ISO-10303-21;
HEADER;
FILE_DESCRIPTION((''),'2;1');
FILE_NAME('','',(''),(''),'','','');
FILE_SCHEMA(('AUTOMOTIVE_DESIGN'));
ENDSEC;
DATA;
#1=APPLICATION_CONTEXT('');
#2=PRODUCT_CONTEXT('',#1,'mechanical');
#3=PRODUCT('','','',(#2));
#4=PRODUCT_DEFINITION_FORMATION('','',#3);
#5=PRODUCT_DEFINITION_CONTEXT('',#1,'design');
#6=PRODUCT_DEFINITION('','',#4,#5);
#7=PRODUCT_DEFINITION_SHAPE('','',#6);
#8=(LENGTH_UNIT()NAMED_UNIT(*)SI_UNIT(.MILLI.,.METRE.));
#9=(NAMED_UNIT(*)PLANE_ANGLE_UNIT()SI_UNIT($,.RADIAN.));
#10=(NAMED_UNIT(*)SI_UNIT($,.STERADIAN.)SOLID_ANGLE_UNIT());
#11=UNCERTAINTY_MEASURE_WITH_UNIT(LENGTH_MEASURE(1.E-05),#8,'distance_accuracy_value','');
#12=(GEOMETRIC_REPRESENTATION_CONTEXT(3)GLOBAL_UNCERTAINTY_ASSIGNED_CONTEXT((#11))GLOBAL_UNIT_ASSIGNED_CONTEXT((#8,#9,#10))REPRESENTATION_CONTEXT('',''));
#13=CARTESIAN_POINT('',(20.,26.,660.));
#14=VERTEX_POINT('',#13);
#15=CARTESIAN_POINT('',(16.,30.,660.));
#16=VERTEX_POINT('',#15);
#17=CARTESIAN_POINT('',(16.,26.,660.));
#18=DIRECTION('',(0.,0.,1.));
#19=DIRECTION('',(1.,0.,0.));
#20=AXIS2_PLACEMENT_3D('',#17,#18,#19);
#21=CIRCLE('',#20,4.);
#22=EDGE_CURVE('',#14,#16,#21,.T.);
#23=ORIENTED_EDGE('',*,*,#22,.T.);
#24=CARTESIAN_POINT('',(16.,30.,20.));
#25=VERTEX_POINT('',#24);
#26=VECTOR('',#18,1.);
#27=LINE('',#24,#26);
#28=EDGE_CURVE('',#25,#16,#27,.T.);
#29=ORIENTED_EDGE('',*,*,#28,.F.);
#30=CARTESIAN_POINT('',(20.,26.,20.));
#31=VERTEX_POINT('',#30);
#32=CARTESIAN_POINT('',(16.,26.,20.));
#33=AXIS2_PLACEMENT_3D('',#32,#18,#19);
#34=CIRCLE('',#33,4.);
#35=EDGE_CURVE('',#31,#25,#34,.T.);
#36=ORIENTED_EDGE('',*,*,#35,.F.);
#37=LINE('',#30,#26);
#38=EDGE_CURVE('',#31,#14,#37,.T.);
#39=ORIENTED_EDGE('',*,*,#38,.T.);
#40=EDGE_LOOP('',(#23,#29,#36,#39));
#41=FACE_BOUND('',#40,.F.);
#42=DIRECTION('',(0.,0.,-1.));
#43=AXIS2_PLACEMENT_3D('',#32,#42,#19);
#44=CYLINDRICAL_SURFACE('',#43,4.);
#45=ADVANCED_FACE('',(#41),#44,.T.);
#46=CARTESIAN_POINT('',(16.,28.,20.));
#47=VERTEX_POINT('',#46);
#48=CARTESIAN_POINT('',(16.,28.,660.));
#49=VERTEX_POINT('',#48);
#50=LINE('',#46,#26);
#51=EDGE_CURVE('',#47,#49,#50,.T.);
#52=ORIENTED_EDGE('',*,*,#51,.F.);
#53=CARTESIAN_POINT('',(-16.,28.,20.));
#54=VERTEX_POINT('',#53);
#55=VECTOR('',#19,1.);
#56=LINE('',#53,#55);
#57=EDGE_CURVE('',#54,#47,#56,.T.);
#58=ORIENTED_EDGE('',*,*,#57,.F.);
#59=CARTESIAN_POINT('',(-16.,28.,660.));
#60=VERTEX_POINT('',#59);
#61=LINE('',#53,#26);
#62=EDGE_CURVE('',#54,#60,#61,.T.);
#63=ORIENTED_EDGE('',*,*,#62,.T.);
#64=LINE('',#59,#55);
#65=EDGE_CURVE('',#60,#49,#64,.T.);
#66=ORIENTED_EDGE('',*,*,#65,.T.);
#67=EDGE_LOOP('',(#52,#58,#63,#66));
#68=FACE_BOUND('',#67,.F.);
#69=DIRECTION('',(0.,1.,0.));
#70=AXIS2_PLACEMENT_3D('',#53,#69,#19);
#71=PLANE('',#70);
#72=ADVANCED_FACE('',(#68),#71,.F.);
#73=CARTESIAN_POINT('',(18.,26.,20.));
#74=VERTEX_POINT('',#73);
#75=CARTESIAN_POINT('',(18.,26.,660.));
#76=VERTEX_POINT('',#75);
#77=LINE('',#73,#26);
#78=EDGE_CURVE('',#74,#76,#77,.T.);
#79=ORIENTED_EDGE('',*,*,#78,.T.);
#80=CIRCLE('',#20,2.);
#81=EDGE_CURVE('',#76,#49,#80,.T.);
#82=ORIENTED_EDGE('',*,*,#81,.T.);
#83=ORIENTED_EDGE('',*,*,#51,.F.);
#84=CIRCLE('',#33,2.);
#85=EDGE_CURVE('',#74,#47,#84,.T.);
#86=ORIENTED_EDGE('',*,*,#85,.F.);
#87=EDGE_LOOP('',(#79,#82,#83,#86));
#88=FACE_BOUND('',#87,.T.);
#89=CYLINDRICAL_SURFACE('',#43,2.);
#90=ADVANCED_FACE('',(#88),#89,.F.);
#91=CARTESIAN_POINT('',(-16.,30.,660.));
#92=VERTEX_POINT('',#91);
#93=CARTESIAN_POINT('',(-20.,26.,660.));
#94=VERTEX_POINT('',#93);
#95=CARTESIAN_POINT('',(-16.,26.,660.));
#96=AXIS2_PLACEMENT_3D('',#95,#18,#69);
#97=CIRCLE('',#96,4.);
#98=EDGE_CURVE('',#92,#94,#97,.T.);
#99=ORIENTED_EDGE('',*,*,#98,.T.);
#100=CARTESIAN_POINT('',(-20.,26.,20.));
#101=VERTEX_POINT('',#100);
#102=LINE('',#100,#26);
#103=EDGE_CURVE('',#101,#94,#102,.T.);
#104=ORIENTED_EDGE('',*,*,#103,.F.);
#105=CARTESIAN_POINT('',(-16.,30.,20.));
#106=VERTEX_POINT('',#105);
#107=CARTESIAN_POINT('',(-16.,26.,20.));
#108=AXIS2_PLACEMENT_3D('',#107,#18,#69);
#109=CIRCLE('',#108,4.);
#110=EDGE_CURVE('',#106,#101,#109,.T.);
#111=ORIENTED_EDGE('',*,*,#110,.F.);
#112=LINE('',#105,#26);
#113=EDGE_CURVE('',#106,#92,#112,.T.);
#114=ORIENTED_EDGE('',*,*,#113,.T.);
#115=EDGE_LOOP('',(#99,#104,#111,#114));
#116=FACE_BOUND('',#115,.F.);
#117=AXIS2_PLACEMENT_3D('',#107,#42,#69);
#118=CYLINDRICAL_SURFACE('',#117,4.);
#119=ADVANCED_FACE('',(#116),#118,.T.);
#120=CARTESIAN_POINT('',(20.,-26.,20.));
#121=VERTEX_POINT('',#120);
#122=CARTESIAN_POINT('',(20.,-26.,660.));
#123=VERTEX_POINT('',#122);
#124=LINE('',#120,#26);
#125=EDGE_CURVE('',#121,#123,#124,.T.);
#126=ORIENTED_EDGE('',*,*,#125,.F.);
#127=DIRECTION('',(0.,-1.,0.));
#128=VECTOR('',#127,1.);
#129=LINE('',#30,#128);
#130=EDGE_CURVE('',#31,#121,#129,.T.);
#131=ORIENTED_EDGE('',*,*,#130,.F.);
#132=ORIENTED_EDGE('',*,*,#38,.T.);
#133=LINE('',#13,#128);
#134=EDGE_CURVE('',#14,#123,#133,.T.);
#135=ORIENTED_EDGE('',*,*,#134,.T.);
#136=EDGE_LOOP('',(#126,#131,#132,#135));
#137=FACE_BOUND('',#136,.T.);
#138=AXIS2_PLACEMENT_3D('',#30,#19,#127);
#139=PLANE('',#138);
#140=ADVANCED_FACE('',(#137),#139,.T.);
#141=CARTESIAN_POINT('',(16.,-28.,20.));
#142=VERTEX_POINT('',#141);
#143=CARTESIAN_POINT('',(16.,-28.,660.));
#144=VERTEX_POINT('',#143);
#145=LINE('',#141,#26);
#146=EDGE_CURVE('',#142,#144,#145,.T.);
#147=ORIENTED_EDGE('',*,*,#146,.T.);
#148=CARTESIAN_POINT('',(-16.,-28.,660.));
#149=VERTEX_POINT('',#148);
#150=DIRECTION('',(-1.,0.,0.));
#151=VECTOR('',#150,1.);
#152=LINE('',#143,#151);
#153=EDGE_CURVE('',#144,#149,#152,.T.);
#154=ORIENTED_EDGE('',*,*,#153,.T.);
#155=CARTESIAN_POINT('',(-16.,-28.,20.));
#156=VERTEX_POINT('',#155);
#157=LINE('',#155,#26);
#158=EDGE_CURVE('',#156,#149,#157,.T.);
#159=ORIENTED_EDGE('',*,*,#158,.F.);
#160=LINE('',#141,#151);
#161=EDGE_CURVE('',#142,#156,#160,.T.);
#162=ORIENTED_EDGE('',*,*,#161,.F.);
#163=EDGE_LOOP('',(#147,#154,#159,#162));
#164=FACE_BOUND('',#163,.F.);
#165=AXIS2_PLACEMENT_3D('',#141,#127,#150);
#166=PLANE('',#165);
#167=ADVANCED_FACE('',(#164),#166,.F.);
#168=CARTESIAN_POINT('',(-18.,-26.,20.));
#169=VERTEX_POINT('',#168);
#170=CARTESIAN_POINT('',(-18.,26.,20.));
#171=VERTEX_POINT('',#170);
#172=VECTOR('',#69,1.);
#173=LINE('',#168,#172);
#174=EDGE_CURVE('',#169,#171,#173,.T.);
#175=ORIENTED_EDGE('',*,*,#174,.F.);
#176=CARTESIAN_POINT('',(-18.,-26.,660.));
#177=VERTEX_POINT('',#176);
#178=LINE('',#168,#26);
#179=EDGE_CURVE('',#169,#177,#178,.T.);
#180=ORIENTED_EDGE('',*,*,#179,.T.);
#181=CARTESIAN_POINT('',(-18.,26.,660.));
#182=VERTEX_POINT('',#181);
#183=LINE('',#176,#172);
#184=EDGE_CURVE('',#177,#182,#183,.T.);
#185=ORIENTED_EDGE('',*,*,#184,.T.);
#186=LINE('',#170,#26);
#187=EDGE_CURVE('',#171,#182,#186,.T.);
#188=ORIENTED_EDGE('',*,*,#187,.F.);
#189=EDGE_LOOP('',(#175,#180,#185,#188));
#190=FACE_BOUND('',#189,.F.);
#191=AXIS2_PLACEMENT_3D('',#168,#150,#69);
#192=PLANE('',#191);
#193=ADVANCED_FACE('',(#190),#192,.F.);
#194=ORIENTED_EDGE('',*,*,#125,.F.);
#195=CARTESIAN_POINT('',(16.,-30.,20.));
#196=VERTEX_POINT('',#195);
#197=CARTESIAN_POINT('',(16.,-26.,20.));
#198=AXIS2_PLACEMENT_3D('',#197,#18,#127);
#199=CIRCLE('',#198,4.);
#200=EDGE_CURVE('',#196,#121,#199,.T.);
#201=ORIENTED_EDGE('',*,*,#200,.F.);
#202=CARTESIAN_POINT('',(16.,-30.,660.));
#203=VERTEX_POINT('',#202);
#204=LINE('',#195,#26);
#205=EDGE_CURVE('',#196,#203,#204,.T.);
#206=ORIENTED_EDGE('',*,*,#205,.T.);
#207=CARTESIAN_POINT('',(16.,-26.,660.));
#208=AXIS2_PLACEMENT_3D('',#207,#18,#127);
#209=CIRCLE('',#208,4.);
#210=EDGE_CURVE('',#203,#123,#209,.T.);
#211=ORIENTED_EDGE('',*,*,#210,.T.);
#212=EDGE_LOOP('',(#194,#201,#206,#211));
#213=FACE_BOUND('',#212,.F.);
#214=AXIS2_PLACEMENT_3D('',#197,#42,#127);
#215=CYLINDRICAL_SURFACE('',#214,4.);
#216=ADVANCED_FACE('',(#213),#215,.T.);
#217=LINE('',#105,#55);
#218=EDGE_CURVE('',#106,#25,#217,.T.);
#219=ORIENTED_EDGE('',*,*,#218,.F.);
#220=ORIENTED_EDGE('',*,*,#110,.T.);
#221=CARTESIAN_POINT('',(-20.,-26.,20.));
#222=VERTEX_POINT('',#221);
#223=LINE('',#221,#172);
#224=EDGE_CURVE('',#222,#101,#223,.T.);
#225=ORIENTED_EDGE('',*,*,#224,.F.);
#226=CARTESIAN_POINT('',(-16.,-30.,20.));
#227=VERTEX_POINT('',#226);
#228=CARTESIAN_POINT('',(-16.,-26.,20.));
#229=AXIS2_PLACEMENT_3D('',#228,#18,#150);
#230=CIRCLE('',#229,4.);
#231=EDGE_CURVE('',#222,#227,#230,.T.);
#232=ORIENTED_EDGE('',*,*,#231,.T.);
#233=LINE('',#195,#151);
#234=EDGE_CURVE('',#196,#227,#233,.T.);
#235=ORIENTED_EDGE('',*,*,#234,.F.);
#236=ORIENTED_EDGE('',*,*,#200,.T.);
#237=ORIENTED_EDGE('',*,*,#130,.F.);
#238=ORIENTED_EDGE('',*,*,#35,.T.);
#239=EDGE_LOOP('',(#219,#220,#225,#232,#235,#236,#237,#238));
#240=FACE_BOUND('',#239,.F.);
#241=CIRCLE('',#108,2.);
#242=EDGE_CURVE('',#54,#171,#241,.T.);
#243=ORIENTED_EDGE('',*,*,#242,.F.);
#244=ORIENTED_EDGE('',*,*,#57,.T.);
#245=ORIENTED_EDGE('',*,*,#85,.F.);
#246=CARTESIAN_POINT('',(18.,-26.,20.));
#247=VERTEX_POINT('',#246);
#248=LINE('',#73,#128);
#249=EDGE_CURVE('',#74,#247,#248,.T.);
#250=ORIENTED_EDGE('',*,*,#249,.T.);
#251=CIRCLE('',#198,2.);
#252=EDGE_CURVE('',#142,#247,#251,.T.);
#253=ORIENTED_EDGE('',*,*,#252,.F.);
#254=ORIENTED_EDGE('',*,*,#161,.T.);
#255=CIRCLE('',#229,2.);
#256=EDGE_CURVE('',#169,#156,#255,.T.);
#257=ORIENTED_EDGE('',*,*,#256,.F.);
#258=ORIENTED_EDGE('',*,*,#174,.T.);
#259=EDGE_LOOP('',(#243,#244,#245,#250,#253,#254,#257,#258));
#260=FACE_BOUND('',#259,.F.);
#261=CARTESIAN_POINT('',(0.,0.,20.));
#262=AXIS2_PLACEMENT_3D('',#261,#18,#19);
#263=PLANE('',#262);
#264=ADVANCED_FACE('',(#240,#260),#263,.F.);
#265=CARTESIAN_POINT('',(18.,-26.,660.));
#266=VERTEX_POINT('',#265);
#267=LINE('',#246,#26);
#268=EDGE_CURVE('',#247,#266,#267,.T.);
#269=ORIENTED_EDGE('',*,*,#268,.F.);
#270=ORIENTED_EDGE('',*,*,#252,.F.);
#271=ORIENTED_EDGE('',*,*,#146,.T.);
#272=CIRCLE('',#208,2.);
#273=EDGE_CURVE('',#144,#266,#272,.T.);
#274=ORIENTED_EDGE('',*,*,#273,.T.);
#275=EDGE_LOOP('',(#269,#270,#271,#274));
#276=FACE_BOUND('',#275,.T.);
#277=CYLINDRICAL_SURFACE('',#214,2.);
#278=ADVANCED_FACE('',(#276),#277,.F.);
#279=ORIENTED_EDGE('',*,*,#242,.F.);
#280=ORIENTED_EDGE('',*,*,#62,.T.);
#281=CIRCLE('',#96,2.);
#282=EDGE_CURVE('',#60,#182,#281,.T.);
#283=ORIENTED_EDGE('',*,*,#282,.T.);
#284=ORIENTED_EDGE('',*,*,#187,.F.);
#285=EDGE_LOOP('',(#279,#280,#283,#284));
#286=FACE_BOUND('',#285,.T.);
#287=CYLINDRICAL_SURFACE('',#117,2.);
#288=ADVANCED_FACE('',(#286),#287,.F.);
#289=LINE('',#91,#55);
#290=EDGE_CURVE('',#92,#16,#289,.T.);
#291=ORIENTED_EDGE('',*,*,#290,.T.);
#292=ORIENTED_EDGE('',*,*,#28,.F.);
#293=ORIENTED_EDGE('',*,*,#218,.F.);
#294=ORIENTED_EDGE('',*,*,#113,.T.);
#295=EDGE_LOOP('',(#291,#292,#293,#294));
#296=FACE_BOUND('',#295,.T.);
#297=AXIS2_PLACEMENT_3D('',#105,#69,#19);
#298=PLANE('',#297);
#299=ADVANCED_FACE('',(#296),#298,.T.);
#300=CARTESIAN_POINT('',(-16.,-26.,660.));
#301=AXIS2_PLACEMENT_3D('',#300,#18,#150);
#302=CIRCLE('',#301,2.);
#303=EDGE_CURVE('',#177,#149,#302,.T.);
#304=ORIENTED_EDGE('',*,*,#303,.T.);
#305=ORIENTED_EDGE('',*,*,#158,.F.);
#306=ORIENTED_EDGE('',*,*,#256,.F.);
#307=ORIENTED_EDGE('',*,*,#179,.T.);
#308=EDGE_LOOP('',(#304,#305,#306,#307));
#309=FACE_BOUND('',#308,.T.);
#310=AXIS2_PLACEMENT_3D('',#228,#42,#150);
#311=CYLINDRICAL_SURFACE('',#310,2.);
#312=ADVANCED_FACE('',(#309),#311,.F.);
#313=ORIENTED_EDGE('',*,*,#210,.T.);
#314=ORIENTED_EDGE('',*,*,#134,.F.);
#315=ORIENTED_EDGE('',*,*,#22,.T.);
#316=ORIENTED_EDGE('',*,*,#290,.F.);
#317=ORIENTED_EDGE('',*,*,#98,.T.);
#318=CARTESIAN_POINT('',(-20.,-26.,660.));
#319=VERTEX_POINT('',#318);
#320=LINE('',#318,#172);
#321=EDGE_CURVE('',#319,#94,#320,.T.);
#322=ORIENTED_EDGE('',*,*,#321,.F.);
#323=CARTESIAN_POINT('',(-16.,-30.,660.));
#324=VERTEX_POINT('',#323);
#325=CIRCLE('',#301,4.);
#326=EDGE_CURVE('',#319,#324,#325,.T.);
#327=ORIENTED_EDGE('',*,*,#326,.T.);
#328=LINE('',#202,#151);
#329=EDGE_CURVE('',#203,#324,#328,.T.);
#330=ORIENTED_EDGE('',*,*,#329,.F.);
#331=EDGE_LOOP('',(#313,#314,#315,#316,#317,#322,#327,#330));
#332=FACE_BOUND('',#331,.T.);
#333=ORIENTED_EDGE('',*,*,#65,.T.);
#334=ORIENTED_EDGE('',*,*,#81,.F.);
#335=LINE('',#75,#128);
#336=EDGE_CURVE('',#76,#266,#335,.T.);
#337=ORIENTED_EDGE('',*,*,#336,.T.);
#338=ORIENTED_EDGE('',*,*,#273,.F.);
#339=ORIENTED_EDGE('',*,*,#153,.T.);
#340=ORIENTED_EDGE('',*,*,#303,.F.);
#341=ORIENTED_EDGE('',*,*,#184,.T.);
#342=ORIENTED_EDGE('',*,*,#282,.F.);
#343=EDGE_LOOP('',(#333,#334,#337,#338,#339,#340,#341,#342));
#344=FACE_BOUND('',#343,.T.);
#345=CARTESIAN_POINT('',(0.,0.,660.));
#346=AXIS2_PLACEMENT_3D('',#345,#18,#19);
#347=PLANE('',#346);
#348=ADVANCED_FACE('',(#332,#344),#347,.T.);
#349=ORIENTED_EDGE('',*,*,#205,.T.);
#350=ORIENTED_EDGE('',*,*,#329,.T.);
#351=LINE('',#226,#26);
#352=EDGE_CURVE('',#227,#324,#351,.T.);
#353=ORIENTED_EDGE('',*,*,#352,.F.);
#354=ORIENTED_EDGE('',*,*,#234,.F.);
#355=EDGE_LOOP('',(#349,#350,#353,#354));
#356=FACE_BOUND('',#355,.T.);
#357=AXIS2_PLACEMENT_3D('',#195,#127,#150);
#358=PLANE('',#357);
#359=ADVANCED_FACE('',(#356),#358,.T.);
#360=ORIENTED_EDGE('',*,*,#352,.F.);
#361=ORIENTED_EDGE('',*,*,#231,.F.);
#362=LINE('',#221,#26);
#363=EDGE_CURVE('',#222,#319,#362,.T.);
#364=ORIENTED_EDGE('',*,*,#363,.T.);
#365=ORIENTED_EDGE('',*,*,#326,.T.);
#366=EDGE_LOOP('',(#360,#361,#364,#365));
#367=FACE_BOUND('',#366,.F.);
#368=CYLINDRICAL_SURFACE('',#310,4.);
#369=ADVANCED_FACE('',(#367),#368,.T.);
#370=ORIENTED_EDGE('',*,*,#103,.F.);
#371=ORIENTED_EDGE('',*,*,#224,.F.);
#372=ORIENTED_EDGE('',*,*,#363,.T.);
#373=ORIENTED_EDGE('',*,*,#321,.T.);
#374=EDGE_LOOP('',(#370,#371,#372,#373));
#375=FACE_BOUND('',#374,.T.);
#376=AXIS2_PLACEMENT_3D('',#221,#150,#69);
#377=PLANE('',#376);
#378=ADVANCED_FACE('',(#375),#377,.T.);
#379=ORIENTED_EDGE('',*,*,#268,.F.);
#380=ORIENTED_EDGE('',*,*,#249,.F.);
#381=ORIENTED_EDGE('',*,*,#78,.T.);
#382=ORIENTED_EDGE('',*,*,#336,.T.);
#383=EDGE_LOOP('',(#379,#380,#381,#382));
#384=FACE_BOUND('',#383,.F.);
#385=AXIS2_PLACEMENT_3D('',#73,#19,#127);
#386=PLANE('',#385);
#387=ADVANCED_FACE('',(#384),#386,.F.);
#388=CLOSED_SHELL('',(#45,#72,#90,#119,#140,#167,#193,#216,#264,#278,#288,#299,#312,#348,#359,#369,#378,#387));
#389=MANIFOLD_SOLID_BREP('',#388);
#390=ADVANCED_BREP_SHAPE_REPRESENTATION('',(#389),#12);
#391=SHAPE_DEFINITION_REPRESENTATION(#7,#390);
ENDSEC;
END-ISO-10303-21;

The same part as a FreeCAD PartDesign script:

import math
import FreeCAD as App
import Part
import Sketcher

V = App.Vector

doc = App.newDocument("Part")
body = doc.addObject("PartDesign::Body", "Body")

# Sketch on XY plane
sketch1 = body.newObject("Sketcher::SketchObject", "Sketch")
sketch1.AttachmentSupport = (doc.getObject("XY_Plane"), [""])
sketch1.MapMode = "FlatFace"
sketch1.AttachmentOffset = App.Placement(V(0, 0, 20), App.Rotation())
sketch1.addGeometry([
    Part.LineSegment(V(-20, 26, 0), V(-20, -26, 0)),  # 0
    Part.ArcOfCircle(Part.Circle(V(-16, -26, 0), V(0, 0, 1), 4), math.radians(180), math.radians(270)),  # 1
    Part.LineSegment(V(-16, -30, 0), V(16, -30, 0)),  # 2
    Part.ArcOfCircle(Part.Circle(V(16, -26, 0), V(0, 0, 1), 4), math.radians(-90), math.radians(0)),  # 3
    Part.LineSegment(V(20, -26, 0), V(20, 26, 0)),  # 4
    Part.ArcOfCircle(Part.Circle(V(16, 26, 0), V(0, 0, 1), 4), math.radians(0), math.radians(90)),  # 5
    Part.LineSegment(V(16, 30, 0), V(-16, 30, 0)),  # 6
    Part.ArcOfCircle(Part.Circle(V(-16, 26, 0), V(0, 0, 1), 4), math.radians(90), math.radians(180)),  # 7
    Part.ArcOfCircle(Part.Circle(V(-16, 26, 0), V(0, 0, 1), 2), math.radians(90), math.radians(180)),  # 8
    Part.LineSegment(V(-16, 28, 0), V(16, 28, 0)),  # 9
    Part.ArcOfCircle(Part.Circle(V(16, 26, 0), V(0, 0, 1), 2), math.radians(0), math.radians(90)),  # 10
    Part.LineSegment(V(18, 26, 0), V(18, -26, 0)),  # 11
    Part.ArcOfCircle(Part.Circle(V(16, -26, 0), V(0, 0, 1), 2), math.radians(-90), math.radians(0)),  # 12
    Part.LineSegment(V(16, -28, 0), V(-16, -28, 0)),  # 13
    Part.ArcOfCircle(Part.Circle(V(-16, -26, 0), V(0, 0, 1), 2), math.radians(180), math.radians(270)),  # 14
    Part.LineSegment(V(-18, -26, 0), V(-18, 26, 0)),  # 15
], False)
sketch1.addConstraint([
    Sketcher.Constraint("Tangent", 0, 2, 1, 1),
    Sketcher.Constraint("Tangent", 1, 2, 2, 1),
    Sketcher.Constraint("Tangent", 2, 2, 3, 1),
    Sketcher.Constraint("Tangent", 3, 2, 4, 1),
    Sketcher.Constraint("Tangent", 4, 2, 5, 1),
    Sketcher.Constraint("Tangent", 5, 2, 6, 1),
    Sketcher.Constraint("Tangent", 6, 2, 7, 1),
    Sketcher.Constraint("Tangent", 7, 2, 0, 1),
    Sketcher.Constraint("Tangent", 8, 1, 9, 1),
    Sketcher.Constraint("Tangent", 9, 2, 10, 2),
    Sketcher.Constraint("Tangent", 10, 1, 11, 1),
    Sketcher.Constraint("Tangent", 11, 2, 12, 2),
    Sketcher.Constraint("Tangent", 12, 1, 13, 1),
    Sketcher.Constraint("Tangent", 13, 2, 14, 2),
    Sketcher.Constraint("Tangent", 14, 1, 15, 1),
    Sketcher.Constraint("Tangent", 15, 2, 8, 2),
    Sketcher.Constraint("Vertical", 0),
    Sketcher.Constraint("Horizontal", 2),
    Sketcher.Constraint("Vertical", 4),
    Sketcher.Constraint("Horizontal", 6),
    Sketcher.Constraint("Horizontal", 9),
    Sketcher.Constraint("Vertical", 11),
    Sketcher.Constraint("Horizontal", 13),
    Sketcher.Constraint("Vertical", 15),
    Sketcher.Constraint("Coincident", 8, 3, 7, 3),
    Sketcher.Constraint("Coincident", 10, 3, 5, 3),
    Sketcher.Constraint("Coincident", 12, 3, 3, 3),
    Sketcher.Constraint("Equal", 1, 3),
    Sketcher.Constraint("Equal", 3, 5),
    Sketcher.Constraint("Equal", 5, 7),
    Sketcher.Constraint("Equal", 12, 14),
    Sketcher.Constraint("Symmetric", 1, 3, 5, 3, -1, 1),
    Sketcher.Constraint("Radius", 1, 4.0),
    Sketcher.Constraint("Radius", 8, 2.0),
    Sketcher.Constraint("DistanceX", 0, 2, -1, 1, 20.0),
    Sketcher.Constraint("DistanceY", 1, 2, -1, 1, 30.0),
])
pad1 = body.newObject("PartDesign::Pad", "Pad")
pad1.Profile = sketch1
pad1.Length = 640

doc.recompute()
